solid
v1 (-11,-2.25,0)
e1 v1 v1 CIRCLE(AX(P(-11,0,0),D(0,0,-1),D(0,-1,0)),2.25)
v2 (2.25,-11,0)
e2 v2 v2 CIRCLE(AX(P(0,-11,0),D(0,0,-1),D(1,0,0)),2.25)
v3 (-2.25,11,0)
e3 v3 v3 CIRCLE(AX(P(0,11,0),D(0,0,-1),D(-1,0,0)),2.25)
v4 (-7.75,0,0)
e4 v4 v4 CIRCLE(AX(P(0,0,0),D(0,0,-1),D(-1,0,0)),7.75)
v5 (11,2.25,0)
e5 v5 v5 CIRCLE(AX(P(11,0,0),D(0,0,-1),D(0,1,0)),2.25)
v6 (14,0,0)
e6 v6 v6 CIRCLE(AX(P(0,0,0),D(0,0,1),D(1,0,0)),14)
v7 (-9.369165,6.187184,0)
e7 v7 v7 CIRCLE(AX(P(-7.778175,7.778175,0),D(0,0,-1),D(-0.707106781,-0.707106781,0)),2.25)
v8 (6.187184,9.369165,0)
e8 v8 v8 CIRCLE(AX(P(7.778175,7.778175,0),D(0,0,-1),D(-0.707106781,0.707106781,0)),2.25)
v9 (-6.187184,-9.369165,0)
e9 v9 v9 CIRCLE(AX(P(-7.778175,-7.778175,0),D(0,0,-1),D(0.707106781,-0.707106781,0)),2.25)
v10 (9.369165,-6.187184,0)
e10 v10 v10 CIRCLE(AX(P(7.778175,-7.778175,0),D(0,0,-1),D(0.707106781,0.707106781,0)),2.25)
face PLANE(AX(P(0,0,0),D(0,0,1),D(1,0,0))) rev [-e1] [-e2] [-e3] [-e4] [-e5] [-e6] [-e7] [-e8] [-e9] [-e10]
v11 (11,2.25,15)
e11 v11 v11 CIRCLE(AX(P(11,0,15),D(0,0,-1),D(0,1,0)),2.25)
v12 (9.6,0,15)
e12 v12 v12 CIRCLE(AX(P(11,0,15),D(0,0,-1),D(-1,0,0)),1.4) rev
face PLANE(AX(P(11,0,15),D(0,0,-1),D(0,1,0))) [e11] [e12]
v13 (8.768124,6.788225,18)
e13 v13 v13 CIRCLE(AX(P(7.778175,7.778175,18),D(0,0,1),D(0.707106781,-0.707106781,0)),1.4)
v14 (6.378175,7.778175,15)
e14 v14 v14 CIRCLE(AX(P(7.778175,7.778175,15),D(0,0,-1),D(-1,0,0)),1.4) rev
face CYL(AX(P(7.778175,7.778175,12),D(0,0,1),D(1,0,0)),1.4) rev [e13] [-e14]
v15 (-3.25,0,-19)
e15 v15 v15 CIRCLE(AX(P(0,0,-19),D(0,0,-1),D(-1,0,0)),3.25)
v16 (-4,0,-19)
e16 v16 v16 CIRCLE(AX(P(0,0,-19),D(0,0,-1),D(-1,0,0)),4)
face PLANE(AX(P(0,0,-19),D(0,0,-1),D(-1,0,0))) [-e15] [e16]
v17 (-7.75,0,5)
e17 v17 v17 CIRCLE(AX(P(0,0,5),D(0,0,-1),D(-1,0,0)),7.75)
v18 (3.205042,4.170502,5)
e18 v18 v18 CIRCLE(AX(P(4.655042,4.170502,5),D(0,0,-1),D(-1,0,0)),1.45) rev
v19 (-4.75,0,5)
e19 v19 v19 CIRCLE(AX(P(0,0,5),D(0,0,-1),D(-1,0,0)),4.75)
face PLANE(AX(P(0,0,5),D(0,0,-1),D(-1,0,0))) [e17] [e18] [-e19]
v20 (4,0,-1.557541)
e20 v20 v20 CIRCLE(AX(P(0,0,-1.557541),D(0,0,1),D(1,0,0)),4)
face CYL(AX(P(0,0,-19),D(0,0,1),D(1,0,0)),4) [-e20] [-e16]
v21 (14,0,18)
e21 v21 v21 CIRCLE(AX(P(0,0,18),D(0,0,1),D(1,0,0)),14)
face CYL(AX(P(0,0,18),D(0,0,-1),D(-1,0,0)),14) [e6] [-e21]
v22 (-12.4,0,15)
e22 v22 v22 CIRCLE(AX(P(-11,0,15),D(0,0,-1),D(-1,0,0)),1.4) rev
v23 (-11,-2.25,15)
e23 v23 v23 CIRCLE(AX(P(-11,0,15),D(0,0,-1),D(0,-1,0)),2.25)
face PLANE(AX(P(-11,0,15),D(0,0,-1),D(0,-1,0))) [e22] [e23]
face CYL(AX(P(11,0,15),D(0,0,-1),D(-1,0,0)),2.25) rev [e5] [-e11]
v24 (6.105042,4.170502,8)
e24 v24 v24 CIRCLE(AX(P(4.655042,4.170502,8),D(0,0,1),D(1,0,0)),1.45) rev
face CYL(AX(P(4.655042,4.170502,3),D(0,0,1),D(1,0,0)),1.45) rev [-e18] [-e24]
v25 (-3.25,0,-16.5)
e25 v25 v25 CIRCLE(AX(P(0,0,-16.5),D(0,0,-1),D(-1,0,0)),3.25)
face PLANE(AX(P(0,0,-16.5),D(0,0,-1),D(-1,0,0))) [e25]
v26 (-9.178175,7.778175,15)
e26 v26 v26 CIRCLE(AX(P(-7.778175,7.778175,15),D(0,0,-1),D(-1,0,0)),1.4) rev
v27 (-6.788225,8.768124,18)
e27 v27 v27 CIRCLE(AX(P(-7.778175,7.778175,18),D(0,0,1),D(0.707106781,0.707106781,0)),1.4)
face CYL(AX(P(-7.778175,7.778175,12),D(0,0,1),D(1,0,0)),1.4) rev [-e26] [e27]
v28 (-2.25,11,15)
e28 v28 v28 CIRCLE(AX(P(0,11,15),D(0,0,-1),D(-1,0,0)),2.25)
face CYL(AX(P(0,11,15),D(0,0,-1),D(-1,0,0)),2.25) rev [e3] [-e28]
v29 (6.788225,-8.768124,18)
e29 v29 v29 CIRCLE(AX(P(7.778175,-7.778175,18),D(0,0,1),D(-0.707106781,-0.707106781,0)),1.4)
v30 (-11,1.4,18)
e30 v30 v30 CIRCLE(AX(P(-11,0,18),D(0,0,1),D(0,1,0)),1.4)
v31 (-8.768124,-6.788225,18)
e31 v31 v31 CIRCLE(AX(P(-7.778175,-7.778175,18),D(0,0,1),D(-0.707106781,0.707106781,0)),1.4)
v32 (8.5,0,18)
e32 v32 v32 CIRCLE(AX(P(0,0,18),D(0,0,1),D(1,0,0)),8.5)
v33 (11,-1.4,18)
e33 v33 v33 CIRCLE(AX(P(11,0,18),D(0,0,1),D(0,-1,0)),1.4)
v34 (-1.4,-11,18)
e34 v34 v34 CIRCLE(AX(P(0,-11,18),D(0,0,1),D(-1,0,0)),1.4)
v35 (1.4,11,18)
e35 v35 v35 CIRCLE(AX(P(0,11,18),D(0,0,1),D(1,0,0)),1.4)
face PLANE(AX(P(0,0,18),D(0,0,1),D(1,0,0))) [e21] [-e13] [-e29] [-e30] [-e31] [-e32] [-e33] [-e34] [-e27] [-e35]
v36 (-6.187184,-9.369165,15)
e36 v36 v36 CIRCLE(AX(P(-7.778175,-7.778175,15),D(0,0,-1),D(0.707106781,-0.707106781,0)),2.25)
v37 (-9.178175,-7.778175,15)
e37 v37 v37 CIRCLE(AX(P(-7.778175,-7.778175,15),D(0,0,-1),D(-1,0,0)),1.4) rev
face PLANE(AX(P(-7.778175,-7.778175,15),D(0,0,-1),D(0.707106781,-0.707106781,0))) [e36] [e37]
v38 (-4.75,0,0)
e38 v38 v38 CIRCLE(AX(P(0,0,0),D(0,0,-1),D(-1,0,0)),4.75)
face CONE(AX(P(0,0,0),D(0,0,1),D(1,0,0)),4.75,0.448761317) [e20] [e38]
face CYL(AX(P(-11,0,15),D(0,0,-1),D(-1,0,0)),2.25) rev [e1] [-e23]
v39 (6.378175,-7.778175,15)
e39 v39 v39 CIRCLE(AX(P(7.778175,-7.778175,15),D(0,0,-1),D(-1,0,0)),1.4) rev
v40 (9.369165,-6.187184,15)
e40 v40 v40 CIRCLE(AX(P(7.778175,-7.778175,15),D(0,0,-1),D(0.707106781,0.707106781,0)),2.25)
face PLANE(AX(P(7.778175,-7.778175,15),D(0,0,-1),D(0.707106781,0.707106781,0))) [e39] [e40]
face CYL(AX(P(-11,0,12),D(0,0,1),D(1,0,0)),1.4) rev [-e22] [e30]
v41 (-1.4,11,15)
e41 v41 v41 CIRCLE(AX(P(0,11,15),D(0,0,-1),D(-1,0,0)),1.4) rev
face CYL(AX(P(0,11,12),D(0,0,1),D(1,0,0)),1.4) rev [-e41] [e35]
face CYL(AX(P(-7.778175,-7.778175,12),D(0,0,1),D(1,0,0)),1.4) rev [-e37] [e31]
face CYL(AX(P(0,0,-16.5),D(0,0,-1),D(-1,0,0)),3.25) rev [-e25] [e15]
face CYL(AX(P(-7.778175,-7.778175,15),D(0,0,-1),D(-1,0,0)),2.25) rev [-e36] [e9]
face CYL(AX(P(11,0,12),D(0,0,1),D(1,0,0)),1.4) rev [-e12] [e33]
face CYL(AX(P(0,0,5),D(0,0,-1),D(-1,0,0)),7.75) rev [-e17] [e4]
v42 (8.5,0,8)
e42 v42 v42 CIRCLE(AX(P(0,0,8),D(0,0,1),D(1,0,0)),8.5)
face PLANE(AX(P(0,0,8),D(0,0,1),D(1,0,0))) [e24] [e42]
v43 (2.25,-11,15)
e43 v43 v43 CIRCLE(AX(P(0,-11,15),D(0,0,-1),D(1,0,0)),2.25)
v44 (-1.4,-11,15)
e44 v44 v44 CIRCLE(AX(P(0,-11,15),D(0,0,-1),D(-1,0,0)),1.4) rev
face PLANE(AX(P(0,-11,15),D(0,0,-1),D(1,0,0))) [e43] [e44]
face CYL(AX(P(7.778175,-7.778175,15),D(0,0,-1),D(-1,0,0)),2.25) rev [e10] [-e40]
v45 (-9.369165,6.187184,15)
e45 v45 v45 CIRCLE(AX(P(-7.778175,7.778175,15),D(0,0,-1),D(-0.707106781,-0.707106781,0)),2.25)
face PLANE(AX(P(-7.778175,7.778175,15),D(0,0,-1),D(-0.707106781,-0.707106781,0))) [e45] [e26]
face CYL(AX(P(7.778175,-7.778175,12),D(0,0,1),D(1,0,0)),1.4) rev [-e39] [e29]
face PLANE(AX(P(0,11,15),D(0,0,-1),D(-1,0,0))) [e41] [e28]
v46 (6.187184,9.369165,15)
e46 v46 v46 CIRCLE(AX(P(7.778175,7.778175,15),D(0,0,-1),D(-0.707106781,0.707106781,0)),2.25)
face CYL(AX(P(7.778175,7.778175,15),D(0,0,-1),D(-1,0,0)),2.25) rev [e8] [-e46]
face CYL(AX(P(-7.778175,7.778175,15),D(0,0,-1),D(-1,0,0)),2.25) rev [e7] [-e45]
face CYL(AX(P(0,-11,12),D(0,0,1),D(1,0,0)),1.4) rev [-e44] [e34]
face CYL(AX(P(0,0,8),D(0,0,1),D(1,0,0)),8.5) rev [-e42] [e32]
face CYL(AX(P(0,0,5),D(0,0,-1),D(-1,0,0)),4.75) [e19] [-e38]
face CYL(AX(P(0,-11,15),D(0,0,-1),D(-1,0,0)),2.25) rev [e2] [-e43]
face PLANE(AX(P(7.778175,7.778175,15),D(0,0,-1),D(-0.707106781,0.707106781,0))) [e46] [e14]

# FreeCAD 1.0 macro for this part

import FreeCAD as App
import Part
import Sketcher

V = App.Vector


def add_polygon(sketch, points):
    """Adds a closed chain of lines whose ends are joined by coincident constraints."""
    first, n = sketch.GeometryCount, len(points)
    for a, b in zip(points, points[1:] + points[:1]):
        sketch.addGeometry(Part.LineSegment(App.Vector(*a, 0), App.Vector(*b, 0)), False)
    for i in range(n):
        sketch.addConstraint(Sketcher.Constraint("Coincident", first + i, 2, first + (i + 1) % n, 1))

doc = App.newDocument("Part")
body = doc.addObject("PartDesign::Body", "Body")

# Sketch on XY plane
sketch1 = body.newObject("Sketcher::SketchObject", "Sketch")
sketch1.AttachmentSupport = (doc.getObject("XY_Plane"), [""])
sketch1.MapMode = "FlatFace"
sketch1.addGeometry(Part.Circle(V(0, 0, 0), V(0, 0, 1), 14), False)
sketch1.addConstraint([
    Sketcher.Constraint("Coincident", 0, 3, -1, 1),
    Sketcher.Constraint("Diameter", 0, 28.0),
])
pad1 = body.newObject("PartDesign::Pad", "Pad")
pad1.Profile = sketch1
pad1.Length = 18

# Sketch on XY plane
sketch2 = body.newObject("Sketcher::SketchObject", "Sketch001")
sketch2.AttachmentSupport = (doc.getObject("XY_Plane"), [""])
sketch2.MapMode = "FlatFace"
sketch2.AttachmentOffset = App.Placement(V(0, 0, 18), App.Rotation())
sketch2.addGeometry(Part.Circle(V(4.7, 4.2, 0), V(0, 0, 1), 1.4), False)
sketch2.addConstraint([
    Sketcher.Constraint("Diameter", 0, 2.9),
    Sketcher.Constraint("DistanceX", -1, 1, 0, 3, 4.655042),
    Sketcher.Constraint("DistanceY", -1, 1, 0, 3, 4.170502),
])
pocket1 = body.newObject("PartDesign::Pocket", "Pocket")
pocket1.Profile = sketch2
pocket1.Length = 15

# Sketch on XY plane
sketch3 = body.newObject("Sketcher::SketchObject", "Sketch002")
sketch3.AttachmentSupport = (doc.getObject("XY_Plane"), [""])
sketch3.MapMode = "FlatFace"
sketch3.AttachmentOffset = App.Placement(V(0, 0, 18), App.Rotation())
sketch3.addGeometry(Part.Circle(V(0, 11, 0), V(0, 0, 1), 1.4), False)
sketch3.addConstraint([
    Sketcher.Constraint("PointOnObject", 0, 3, -2),
    Sketcher.Constraint("Diameter", 0, 2.8),
    Sketcher.Constraint("DistanceY", -1, 1, 0, 3, 11.0),
])
pocket2 = body.newObject("PartDesign::Pocket", "Pocket001")
pocket2.Profile = sketch3
pocket2.Length = 6
doc.recompute()

polarpattern = body.newObject("PartDesign::PolarPattern", "PolarPattern")
polarpattern.Originals = [pocket2]
polarpattern.Axis = (doc.getObject("Z_Axis"), [""])
polarpattern.Angle = 360
polarpattern.Occurrences = 8
body.Tip = polarpattern

# Sketch on XY plane
sketch4 = body.newObject("Sketcher::SketchObject", "Sketch003")
sketch4.AttachmentSupport = (doc.getObject("XY_Plane"), [""])
sketch4.MapMode = "FlatFace"
sketch4.addGeometry(Part.Circle(V(0, 11, 0), V(0, 0, 1), 2.2), False)
sketch4.addConstraint([
    Sketcher.Constraint("PointOnObject", 0, 3, -2),
    Sketcher.Constraint("Diameter", 0, 4.5),
    Sketcher.Constraint("DistanceY", -1, 1, 0, 3, 11.0),
])
pocket3 = body.newObject("PartDesign::Pocket", "Pocket002")
pocket3.Profile = sketch4
pocket3.Length = 15
pocket3.Reversed = True
doc.recompute()

polarpattern2 = body.newObject("PartDesign::PolarPattern", "PolarPattern001")
polarpattern2.Originals = [pocket3]
polarpattern2.Axis = (doc.getObject("Z_Axis"), [""])
polarpattern2.Angle = 360
polarpattern2.Occurrences = 8
body.Tip = polarpattern2

# Sketch on XY plane
sketch5 = body.newObject("Sketcher::SketchObject", "Sketch004")
sketch5.AttachmentSupport = (doc.getObject("XY_Plane"), [""])
sketch5.MapMode = "FlatFace"
sketch5.addGeometry(Part.Circle(V(0, 0, 0), V(0, 0, 1), 4), False)
sketch5.addConstraint([
    Sketcher.Constraint("Coincident", 0, 3, -1, 1),
    Sketcher.Constraint("Diameter", 0, 8.0),
])
pad2 = body.newObject("PartDesign::Pad", "Pad001")
pad2.Profile = sketch5
pad2.Length = 19
pad2.Reversed = True

# Sketch on XY plane
sketch6 = body.newObject("Sketcher::SketchObject", "Sketch005")
sketch6.AttachmentSupport = (doc.getObject("XY_Plane"), [""])
sketch6.MapMode = "FlatFace"
sketch6.AttachmentOffset = App.Placement(V(0, 0, 18), App.Rotation())
sketch6.addGeometry(Part.Circle(V(0, 0, 0), V(0, 0, 1), 8), False)
sketch6.addConstraint([
    Sketcher.Constraint("Coincident", 0, 3, -1, 1),
    Sketcher.Constraint("Diameter", 0, 17.0),
])
pocket4 = body.newObject("PartDesign::Pocket", "Pocket003")
pocket4.Profile = sketch6
pocket4.Length = 10

# Sketch on XY plane
sketch7 = body.newObject("Sketcher::SketchObject", "Sketch006")
sketch7.AttachmentSupport = (doc.getObject("XY_Plane"), [""])
sketch7.MapMode = "FlatFace"
sketch7.addGeometry([
    Part.Circle(V(0, 0, 0), V(0, 0, 1), 7.8),
    Part.Circle(V(0, 0, 0), V(0, 0, 1), 4.8),
], False)
sketch7.addConstraint([
    Sketcher.Constraint("Coincident", 0, 3, -1, 1),
    Sketcher.Constraint("Coincident", 1, 3, -1, 1),
    Sketcher.Constraint("Diameter", 0, 15.5),
    Sketcher.Constraint("Diameter", 1, 9.5),
])
pocket5 = body.newObject("PartDesign::Pocket", "Pocket004")
pocket5.Profile = sketch7
pocket5.Length = 5
pocket5.Reversed = True

# Sketch on XZ plane
sketch8 = body.newObject("Sketcher::SketchObject", "Sketch007")
sketch8.AttachmentSupport = (doc.getObject("XZ_Plane"), [""])
sketch8.MapMode = "FlatFace"
add_polygon(sketch8, [(4.8, 0), (4, -1.6), (4, 0)])  # lines 0-2
sketch8.addConstraint([
    Sketcher.Constraint("Vertical", 1),
    Sketcher.Constraint("Horizontal", 2),
    Sketcher.Constraint("PointOnObject", 1, 2, -1),
    Sketcher.Constraint("DistanceX", -1, 1, 0, 2, 4.0),
    Sketcher.Constraint("DistanceX", 2, 1, 2, 2, 0.75),
    Sketcher.Constraint("DistanceY", 1, 1, 1, 2, 1.557541),
])
revolution = body.newObject("PartDesign::Revolution", "Revolution")
revolution.Profile = sketch8
revolution.ReferenceAxis = (sketch8, ["V_Axis"])
revolution.Angle = 360

# Sketch on XY plane
sketch9 = body.newObject("Sketcher::SketchObject", "Sketch008")
sketch9.AttachmentSupport = (doc.getObject("XY_Plane"), [""])
sketch9.MapMode = "FlatFace"
sketch9.AttachmentOffset = App.Placement(V(0, 0, -19), App.Rotation())
sketch9.addGeometry(Part.Circle(V(0, 0, 0), V(0, 0, 1), 3.2), False)
sketch9.addConstraint([
    Sketcher.Constraint("Coincident", 0, 3, -1, 1),
    Sketcher.Constraint("Diameter", 0, 6.5),
])
pocket6 = body.newObject("PartDesign::Pocket", "Pocket005")
pocket6.Profile = sketch9
pocket6.Length = 2.5
pocket6.Reversed = True

doc.recompute()
